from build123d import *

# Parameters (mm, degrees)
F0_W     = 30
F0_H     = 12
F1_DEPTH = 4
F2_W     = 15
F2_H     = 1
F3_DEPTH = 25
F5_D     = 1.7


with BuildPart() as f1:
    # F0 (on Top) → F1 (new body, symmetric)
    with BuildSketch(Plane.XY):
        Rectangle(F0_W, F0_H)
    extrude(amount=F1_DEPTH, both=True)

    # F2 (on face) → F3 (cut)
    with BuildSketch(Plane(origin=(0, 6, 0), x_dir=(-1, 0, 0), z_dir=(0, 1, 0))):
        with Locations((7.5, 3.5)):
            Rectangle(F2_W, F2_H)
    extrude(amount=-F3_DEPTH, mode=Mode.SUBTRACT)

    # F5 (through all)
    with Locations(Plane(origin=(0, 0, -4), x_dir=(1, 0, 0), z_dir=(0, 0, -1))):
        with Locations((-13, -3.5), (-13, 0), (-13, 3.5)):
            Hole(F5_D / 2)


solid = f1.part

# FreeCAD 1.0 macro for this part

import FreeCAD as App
import Part
import Sketcher

V = App.Vector


def add_polygon(sketch, points):
    """Adds a closed chain of lines whose ends are joined by coincident constraints."""
    first, n = sketch.GeometryCount, len(points)
    for a, b in zip(points, points[1:] + points[:1]):
        sketch.addGeometry(Part.LineSegment(App.Vector(*a, 0), App.Vector(*b, 0)), False)
    for i in range(n):
        sketch.addConstraint(Sketcher.Constraint("Coincident", first + i, 2, first + (i + 1) % n, 1))

doc = App.newDocument("Part")
params = doc.addObject("Spreadsheet::Sheet", "Params")
for row, (alias, value) in enumerate([
    ("sketch1_width", "30 mm"),
    ("sketch1_height", "12 mm"),
    ("pad1_length", "8 mm"),
    ("sketch2_width", "15 mm"),
    ("sketch2_height", "1 mm"),
    ("pocket1_length", "25 mm"),
    ("sketch3_diameter", "1.7 mm"),
    ("hole_diameter", "1.7 mm"),
], start=1):
    params.set(f"A{row}", alias)
    params.set(f"B{row}", "=" + value)
    params.setAlias(f"B{row}", alias)

body = doc.addObject("PartDesign::Body", "Body")

sketch1 = body.newObject("Sketcher::SketchObject", "Sketch")
sketch1.AttachmentSupport = (doc.getObject("XY_Plane"), [""])
sketch1.MapMode = "FlatFace"
add_polygon(sketch1, [(-15, 6), (-15, -6), (15, -6), (15, 6)])
sketch1.addConstraint([
    Sketcher.Constraint("Vertical", 0),
    Sketcher.Constraint("Horizontal", 1),
    Sketcher.Constraint("Vertical", 2),
    Sketcher.Constraint("Horizontal", 3),
    Sketcher.Constraint("Symmetric", 0, 2, 2, 2, -1, 1),
    Sketcher.Constraint("DistanceX", 1, 1, 1, 2, 30.0),
    Sketcher.Constraint("DistanceY", 0, 2, 0, 1, 12.0),
])
sketch1.setExpression("Constraints[9]", "Params.sketch1_width")
sketch1.setExpression("Constraints[10]", "Params.sketch1_height")
pad1 = body.newObject("PartDesign::Pad", "Pad")
pad1.Profile = sketch1
pad1.setExpression("Length", "Params.pad1_length")
pad1.Midplane = True

sketch2 = body.newObject("Sketcher::SketchObject", "Sketch001")
sketch2.AttachmentSupport = (doc.getObject("XZ_Plane"), [""])
sketch2.MapMode = "FlatFace"
sketch2.AttachmentOffset = App.Placement(V(0, 0, -6), App.Rotation())
add_polygon(sketch2, [(0, 4), (0, 3), (-15, 3), (-15, 4)])
sketch2.addConstraint([
    Sketcher.Constraint("Vertical", 0),
    Sketcher.Constraint("Horizontal", 1),
    Sketcher.Constraint("Vertical", 2),
    Sketcher.Constraint("Horizontal", 3),
    Sketcher.Constraint("PointOnObject", 0, 2, -2),
    Sketcher.Constraint("DistanceX", 1, 2, 1, 1, 15.0),
    Sketcher.Constraint("DistanceY", 0, 2, 0, 1, 1.0),
    Sketcher.Constraint("DistanceY", -1, 1, 0, 2, 3.0),
])
sketch2.setExpression("Constraints[9]", "Params.sketch2_width")
sketch2.setExpression("Constraints[10]", "Params.sketch2_height")
pocket1 = body.newObject("PartDesign::Pocket", "Pocket")
pocket1.Profile = sketch2
pocket1.setExpression("Length", "Params.pocket1_length")
pocket1.Reversed = True

sketch3 = body.newObject("Sketcher::SketchObject", "Sketch002")
sketch3.AttachmentSupport = (doc.getObject("XY_Plane"), [""])
sketch3.MapMode = "FlatFace"
sketch3.AttachmentOffset = App.Placement(V(0, 0, -4), App.Rotation())
sketch3.addGeometry([
    Part.Circle(V(-13, 3.5, 0), V(0, 0, 1), 0.85),
    Part.Circle(V(-13, 0, 0), V(0, 0, 1), 0.85),
    Part.Circle(V(-13, -3.5, 0), V(0, 0, 1), 0.85),
], False)
sketch3.addConstraint([
    Sketcher.Constraint("Equal", 0, 1),
    Sketcher.Constraint("Equal", 1, 2),
    Sketcher.Constraint("Symmetric", 0, 3, 2, 3, -1),
    Sketcher.Constraint("PointOnObject", 1, 3, -1),
    Sketcher.Constraint("Vertical", 0, 3, 1, 3),
    Sketcher.Constraint("Diameter", 0, 1.7),
    Sketcher.Constraint("DistanceX", 0, 3, -1, 1, 13.0),
    Sketcher.Constraint("DistanceY", 2, 3, 0, 3, 7.0),
])
sketch3.setExpression("Constraints[5]", "Params.sketch3_diameter")
doc.recompute()
hole = body.newObject("PartDesign::Hole", "Hole")
hole.Profile = sketch3
hole.ThreadType = "None"
hole.setExpression("Diameter", "Params.hole_diameter")
hole.DepthType = "ThroughAll"
hole.Reversed = True

doc.recompute()
